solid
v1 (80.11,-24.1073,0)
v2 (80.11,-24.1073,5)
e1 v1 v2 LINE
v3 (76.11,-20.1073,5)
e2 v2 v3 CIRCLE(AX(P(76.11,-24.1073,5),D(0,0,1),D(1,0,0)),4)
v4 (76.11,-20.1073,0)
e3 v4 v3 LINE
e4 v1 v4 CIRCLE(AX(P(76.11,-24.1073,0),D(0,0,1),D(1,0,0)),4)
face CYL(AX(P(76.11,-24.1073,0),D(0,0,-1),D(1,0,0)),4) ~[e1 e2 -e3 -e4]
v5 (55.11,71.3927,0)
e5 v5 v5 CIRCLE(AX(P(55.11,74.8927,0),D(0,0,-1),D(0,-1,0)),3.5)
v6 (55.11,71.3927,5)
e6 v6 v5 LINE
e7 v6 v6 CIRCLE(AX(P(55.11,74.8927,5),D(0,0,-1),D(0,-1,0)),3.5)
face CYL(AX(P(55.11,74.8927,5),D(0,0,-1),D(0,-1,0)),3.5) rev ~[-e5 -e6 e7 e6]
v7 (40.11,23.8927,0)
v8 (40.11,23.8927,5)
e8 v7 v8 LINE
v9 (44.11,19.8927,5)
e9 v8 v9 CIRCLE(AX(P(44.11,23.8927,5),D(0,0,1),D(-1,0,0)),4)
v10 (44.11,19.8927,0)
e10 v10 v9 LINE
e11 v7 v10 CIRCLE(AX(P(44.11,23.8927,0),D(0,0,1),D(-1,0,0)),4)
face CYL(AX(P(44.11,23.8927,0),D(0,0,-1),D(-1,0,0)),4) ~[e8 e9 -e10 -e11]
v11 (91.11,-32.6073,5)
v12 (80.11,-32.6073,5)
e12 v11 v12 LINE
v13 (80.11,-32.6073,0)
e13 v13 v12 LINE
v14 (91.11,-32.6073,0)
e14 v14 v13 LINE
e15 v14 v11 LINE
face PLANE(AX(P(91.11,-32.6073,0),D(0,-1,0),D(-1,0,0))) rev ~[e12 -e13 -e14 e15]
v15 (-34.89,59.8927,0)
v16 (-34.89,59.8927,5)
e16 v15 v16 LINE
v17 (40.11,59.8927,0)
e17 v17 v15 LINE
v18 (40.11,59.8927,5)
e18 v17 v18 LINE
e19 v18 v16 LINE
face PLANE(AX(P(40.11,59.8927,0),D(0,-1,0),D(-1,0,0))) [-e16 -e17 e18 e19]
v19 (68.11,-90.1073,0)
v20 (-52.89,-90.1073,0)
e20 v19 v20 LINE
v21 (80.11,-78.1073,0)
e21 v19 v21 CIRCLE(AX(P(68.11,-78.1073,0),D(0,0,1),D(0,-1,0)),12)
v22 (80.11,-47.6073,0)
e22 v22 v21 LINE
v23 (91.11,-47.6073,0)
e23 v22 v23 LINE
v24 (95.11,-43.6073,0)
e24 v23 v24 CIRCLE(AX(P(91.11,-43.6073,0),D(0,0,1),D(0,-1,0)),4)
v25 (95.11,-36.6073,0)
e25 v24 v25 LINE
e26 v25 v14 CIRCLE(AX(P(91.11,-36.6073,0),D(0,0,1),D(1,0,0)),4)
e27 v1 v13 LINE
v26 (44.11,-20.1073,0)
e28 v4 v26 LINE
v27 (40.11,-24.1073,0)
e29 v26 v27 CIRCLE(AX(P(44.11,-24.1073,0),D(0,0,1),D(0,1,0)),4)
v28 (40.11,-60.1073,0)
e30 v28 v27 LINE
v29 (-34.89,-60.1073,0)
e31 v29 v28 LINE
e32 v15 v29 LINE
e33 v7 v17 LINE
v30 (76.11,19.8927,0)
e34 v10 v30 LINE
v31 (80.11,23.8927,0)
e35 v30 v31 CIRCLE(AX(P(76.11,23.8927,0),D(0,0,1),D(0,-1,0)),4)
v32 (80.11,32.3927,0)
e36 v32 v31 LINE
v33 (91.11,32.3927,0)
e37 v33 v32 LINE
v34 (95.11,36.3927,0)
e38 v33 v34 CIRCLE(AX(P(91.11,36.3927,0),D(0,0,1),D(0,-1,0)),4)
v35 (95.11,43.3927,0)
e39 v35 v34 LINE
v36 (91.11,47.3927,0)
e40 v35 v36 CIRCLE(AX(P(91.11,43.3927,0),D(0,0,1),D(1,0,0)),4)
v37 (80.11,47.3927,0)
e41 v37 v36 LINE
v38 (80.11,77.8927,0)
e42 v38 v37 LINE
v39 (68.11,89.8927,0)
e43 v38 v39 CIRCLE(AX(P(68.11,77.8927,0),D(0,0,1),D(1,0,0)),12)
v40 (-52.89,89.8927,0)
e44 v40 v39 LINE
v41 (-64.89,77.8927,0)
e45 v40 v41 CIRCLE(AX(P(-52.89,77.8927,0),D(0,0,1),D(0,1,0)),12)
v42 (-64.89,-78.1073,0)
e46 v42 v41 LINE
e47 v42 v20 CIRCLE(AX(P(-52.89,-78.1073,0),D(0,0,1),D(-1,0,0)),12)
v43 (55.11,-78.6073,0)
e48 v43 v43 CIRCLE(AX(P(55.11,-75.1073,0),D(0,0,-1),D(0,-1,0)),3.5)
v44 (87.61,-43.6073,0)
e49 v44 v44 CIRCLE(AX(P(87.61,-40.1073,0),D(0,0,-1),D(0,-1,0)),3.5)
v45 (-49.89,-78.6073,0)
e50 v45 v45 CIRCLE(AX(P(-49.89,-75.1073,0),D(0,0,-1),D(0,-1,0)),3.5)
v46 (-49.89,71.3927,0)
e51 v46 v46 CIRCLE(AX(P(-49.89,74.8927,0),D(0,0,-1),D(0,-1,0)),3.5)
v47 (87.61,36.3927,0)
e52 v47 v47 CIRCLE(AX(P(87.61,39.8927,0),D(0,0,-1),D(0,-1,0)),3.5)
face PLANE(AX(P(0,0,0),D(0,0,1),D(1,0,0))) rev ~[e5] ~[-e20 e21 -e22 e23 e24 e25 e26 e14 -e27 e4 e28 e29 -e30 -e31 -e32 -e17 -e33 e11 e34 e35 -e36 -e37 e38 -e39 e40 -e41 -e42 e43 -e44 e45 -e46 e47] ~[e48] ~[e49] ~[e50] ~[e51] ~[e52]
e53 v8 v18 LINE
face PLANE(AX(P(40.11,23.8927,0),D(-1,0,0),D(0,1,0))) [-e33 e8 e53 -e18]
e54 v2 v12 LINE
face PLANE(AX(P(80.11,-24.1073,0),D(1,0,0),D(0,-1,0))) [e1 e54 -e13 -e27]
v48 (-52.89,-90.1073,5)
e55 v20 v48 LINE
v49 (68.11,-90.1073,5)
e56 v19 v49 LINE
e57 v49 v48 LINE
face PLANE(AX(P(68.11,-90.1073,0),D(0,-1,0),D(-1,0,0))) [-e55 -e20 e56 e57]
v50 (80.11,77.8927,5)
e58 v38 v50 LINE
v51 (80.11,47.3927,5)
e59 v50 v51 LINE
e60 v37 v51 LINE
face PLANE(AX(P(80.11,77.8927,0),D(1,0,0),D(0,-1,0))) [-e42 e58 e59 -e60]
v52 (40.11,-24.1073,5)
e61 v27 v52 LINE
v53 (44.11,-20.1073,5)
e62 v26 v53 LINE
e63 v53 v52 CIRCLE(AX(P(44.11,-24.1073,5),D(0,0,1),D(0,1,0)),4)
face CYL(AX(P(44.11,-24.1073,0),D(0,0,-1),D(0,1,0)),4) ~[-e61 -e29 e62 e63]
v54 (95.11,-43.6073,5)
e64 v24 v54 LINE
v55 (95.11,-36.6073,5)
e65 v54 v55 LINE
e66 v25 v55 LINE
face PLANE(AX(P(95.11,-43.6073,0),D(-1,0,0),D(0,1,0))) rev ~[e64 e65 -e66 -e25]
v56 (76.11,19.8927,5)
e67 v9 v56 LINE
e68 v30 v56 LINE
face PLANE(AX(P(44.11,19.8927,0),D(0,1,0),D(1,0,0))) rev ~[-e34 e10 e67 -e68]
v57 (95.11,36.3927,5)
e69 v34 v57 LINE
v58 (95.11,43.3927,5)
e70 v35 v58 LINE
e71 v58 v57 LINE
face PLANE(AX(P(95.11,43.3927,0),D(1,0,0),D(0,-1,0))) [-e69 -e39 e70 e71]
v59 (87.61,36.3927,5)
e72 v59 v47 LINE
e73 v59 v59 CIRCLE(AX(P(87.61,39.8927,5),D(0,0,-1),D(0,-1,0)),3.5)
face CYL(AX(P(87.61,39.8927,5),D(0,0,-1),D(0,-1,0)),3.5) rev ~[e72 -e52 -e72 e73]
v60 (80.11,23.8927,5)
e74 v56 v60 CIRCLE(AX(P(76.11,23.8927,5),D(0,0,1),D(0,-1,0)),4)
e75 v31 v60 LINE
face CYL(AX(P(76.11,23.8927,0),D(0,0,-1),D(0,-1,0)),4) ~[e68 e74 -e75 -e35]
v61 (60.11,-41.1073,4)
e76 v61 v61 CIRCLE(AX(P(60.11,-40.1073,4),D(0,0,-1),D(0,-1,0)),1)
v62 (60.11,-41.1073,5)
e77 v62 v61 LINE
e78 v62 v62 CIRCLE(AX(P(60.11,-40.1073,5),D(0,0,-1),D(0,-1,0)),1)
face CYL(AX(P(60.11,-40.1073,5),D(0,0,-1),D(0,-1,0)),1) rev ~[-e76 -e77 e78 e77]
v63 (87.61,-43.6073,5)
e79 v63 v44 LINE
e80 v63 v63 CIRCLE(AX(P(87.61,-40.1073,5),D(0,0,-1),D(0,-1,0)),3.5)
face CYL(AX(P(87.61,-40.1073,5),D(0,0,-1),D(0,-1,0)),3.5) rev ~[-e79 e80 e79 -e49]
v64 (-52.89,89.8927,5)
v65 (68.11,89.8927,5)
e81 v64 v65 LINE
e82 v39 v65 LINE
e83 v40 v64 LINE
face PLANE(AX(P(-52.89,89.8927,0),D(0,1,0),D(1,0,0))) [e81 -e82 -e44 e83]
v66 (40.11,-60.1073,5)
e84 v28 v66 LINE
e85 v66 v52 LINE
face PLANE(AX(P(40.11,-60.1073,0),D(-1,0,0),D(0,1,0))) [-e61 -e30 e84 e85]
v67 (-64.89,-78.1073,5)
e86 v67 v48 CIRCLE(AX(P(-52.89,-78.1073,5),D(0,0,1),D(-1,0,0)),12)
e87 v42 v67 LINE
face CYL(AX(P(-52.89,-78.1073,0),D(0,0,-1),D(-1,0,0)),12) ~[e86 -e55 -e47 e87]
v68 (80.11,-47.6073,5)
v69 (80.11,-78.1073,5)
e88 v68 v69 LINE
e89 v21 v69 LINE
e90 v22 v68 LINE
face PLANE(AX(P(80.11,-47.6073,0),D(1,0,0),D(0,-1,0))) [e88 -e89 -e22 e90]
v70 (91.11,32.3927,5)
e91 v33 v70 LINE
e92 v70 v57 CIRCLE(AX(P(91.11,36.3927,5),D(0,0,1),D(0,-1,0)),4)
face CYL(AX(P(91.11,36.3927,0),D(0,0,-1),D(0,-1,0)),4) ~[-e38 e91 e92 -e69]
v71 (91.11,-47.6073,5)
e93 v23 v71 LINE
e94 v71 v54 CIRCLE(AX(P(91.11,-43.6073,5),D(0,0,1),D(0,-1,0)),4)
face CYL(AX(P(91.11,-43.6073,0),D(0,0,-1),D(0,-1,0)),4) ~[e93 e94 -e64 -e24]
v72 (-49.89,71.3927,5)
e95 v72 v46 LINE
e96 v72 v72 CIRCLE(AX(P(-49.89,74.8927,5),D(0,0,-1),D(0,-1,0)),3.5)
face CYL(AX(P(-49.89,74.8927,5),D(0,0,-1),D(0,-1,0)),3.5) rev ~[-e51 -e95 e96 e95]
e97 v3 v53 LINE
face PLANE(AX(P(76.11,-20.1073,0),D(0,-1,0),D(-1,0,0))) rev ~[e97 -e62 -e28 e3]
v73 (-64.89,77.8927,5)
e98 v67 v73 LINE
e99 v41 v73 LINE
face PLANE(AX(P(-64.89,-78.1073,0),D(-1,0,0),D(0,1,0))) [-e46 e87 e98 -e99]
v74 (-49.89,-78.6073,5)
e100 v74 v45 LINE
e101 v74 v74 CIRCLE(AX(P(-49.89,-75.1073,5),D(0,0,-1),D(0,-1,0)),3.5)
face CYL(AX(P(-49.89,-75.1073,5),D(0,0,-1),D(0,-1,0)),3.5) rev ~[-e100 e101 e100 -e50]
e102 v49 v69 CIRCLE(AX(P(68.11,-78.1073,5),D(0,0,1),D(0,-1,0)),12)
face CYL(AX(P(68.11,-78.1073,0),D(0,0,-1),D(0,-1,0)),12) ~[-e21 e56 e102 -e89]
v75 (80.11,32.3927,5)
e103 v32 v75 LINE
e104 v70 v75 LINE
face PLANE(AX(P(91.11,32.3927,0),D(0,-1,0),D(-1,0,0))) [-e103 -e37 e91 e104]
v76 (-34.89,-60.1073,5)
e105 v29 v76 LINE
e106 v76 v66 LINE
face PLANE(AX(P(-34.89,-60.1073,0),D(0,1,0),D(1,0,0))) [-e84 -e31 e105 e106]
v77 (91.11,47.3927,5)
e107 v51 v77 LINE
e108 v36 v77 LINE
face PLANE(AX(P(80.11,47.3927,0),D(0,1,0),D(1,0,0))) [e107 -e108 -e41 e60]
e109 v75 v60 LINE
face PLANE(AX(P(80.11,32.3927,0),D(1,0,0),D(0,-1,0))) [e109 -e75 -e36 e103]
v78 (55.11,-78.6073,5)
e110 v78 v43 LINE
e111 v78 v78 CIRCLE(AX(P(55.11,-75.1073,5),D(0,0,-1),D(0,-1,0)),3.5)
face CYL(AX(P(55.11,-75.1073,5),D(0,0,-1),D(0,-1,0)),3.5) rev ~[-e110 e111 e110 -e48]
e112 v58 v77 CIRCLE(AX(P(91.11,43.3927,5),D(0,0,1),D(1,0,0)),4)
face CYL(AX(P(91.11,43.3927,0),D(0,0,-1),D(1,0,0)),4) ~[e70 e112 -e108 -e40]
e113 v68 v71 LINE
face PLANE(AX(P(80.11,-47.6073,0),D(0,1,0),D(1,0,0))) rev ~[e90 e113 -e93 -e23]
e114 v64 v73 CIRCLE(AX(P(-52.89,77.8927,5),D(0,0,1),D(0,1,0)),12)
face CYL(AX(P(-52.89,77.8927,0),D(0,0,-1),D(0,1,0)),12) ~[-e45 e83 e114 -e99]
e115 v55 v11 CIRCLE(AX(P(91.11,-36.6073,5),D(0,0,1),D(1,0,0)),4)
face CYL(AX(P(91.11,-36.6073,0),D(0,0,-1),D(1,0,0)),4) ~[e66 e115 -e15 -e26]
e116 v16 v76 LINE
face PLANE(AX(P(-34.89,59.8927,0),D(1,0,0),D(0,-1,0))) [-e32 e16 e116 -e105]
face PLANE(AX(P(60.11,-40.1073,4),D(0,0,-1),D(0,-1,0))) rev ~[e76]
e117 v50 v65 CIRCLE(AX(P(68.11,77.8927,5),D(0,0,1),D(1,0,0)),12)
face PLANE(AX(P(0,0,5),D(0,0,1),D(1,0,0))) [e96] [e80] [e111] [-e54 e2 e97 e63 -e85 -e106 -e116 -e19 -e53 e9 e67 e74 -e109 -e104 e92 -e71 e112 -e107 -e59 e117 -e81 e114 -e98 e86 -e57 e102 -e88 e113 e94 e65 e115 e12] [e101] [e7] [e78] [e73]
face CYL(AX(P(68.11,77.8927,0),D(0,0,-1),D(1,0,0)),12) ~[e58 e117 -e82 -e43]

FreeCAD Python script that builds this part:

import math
import FreeCAD as App
import Part
import Sketcher
Q = App.Units.Quantity

doc = App.newDocument("Part")
body = doc.addObject("PartDesign::Body", "Body")

sketch1 = doc.addObject("Sketcher::SketchObject", "Sketch")
body.addObject(sketch1)
sketch1.AttachmentSupport = (doc.XY_Plane, [""])
sketch1.MapMode = "FlatFace"
sketch1.addGeometry([
    Part.LineSegment(App.Vector(-34.9, 59.9, 0), App.Vector(40.1, 59.9, 0)),
    Part.LineSegment(App.Vector(40.1, 59.9, 0), App.Vector(40.1, 23.9, 0)),
    Part.ArcOfCircle(Part.Circle(App.Vector(44.1, 23.9, 0), App.Vector(0, 0, 1), 4), math.radians(180), math.radians(270)),
    Part.LineSegment(App.Vector(44.1, 19.9, 0), App.Vector(76.1, 19.9, 0)),
    Part.ArcOfCircle(Part.Circle(App.Vector(76.1, 23.9, 0), App.Vector(0, 0, 1), 4), math.radians(-90), math.radians(0)),
    Part.LineSegment(App.Vector(80.1, 23.9, 0), App.Vector(80.1, 32.4, 0)),
    Part.LineSegment(App.Vector(80.1, 32.4, 0), App.Vector(91.1, 32.4, 0)),
    Part.ArcOfCircle(Part.Circle(App.Vector(91.1, 36.4, 0), App.Vector(0, 0, 1), 4), math.radians(-90), math.radians(0)),
    Part.LineSegment(App.Vector(95.1, 36.4, 0), App.Vector(95.1, 43.4, 0)),
    Part.ArcOfCircle(Part.Circle(App.Vector(91.1, 43.4, 0), App.Vector(0, 0, 1), 4), math.radians(0), math.radians(90)),
    Part.LineSegment(App.Vector(91.1, 47.4, 0), App.Vector(80.1, 47.4, 0)),
    Part.LineSegment(App.Vector(80.1, 47.4, 0), App.Vector(80.1, 77.9, 0)),
    Part.ArcOfCircle(Part.Circle(App.Vector(68.1, 77.9, 0), App.Vector(0, 0, 1), 12), math.radians(0), math.radians(90)),
    Part.LineSegment(App.Vector(68.1, 89.9, 0), App.Vector(-52.9, 89.9, 0)),
    Part.ArcOfCircle(Part.Circle(App.Vector(-52.9, 77.9, 0), App.Vector(0, 0, 1), 12), math.radians(90), math.radians(180)),
    Part.LineSegment(App.Vector(-64.9, 77.9, 0), App.Vector(-64.9, -78.1, 0)),
    Part.ArcOfCircle(Part.Circle(App.Vector(-52.9, -78.1, 0), App.Vector(0, 0, 1), 12), math.radians(180), math.radians(270)),
    Part.LineSegment(App.Vector(-52.9, -90.1, 0), App.Vector(68.1, -90.1, 0)),
    Part.ArcOfCircle(Part.Circle(App.Vector(68.1, -78.1, 0), App.Vector(0, 0, 1), 12), math.radians(-90), math.radians(0)),
    Part.LineSegment(App.Vector(80.1, -78.1, 0), App.Vector(80.1, -47.6, 0)),
    Part.LineSegment(App.Vector(80.1, -47.6, 0), App.Vector(91.1, -47.6, 0)),
    Part.ArcOfCircle(Part.Circle(App.Vector(91.1, -43.6, 0), App.Vector(0, 0, 1), 4), math.radians(-90), math.radians(0)),
    Part.LineSegment(App.Vector(95.1, -43.6, 0), App.Vector(95.1, -36.6, 0)),
    Part.ArcOfCircle(Part.Circle(App.Vector(91.1, -36.6, 0), App.Vector(0, 0, 1), 4), math.radians(0), math.radians(90)),
    Part.LineSegment(App.Vector(91.1, -32.6, 0), App.Vector(80.1, -32.6, 0)),
    Part.LineSegment(App.Vector(80.1, -32.6, 0), App.Vector(80.1, -24.1, 0)),
    Part.ArcOfCircle(Part.Circle(App.Vector(76.1, -24.1, 0), App.Vector(0, 0, 1), 4), math.radians(0), math.radians(90)),
    Part.LineSegment(App.Vector(76.1, -20.1, 0), App.Vector(44.1, -20.1, 0)),
    Part.ArcOfCircle(Part.Circle(App.Vector(44.1, -24.1, 0), App.Vector(0, 0, 1), 4), math.radians(90), math.radians(180)),
    Part.LineSegment(App.Vector(40.1, -24.1, 0), App.Vector(40.1, -60.1, 0)),
    Part.LineSegment(App.Vector(40.1, -60.1, 0), App.Vector(-34.9, -60.1, 0)),
    Part.LineSegment(App.Vector(-34.9, -60.1, 0), App.Vector(-34.9, 59.9, 0)),
], False)
sketch1.addConstraint([
    Sketcher.Constraint("Coincident", 0, 2, 1, 1),
    Sketcher.Constraint("Tangent", 1, 2, 2, 1),
    Sketcher.Constraint("Tangent", 2, 2, 3, 1),
    Sketcher.Constraint("Tangent", 3, 2, 4, 1),
    Sketcher.Constraint("Tangent", 4, 2, 5, 1),
    Sketcher.Constraint("Coincident", 5, 2, 6, 1),
    Sketcher.Constraint("Tangent", 6, 2, 7, 1),
    Sketcher.Constraint("Tangent", 7, 2, 8, 1),
    Sketcher.Constraint("Tangent", 8, 2, 9, 1),
    Sketcher.Constraint("Tangent", 9, 2, 10, 1),
    Sketcher.Constraint("Coincident", 10, 2, 11, 1),
    Sketcher.Constraint("Tangent", 11, 2, 12, 1),
    Sketcher.Constraint("Tangent", 12, 2, 13, 1),
    Sketcher.Constraint("Tangent", 13, 2, 14, 1),
    Sketcher.Constraint("Tangent", 14, 2, 15, 1),
    Sketcher.Constraint("Tangent", 15, 2, 16, 1),
    Sketcher.Constraint("Tangent", 16, 2, 17, 1),
    Sketcher.Constraint("Tangent", 17, 2, 18, 1),
    Sketcher.Constraint("Tangent", 18, 2, 19, 1),
    Sketcher.Constraint("Coincident", 19, 2, 20, 1),
    Sketcher.Constraint("Tangent", 20, 2, 21, 1),
    Sketcher.Constraint("Tangent", 21, 2, 22, 1),
    Sketcher.Constraint("Tangent", 22, 2, 23, 1),
    Sketcher.Constraint("Tangent", 23, 2, 24, 1),
    Sketcher.Constraint("Coincident", 24, 2, 25, 1),
    Sketcher.Constraint("Tangent", 25, 2, 26, 1),
    Sketcher.Constraint("Tangent", 26, 2, 27, 1),
    Sketcher.Constraint("Tangent", 27, 2, 28, 1),
    Sketcher.Constraint("Tangent", 28, 2, 29, 1),
    Sketcher.Constraint("Coincident", 29, 2, 30, 1),
    Sketcher.Constraint("Coincident", 30, 2, 31, 1),
    Sketcher.Constraint("Coincident", 31, 2, 0, 1),
    Sketcher.Constraint("Horizontal", 0),
    Sketcher.Constraint("Vertical", 1),
    Sketcher.Constraint("Horizontal", 3),
    Sketcher.Constraint("Vertical", 5),
    Sketcher.Constraint("Horizontal", 6),
    Sketcher.Constraint("Vertical", 8),
    Sketcher.Constraint("Horizontal", 10),
    Sketcher.Constraint("Vertical", 11),
    Sketcher.Constraint("Horizontal", 13),
    Sketcher.Constraint("Vertical", 15),
    Sketcher.Constraint("Horizontal", 17),
    Sketcher.Constraint("Vertical", 19),
    Sketcher.Constraint("Horizontal", 20),
    Sketcher.Constraint("Vertical", 22),
    Sketcher.Constraint("Horizontal", 24),
    Sketcher.Constraint("Vertical", 25),
    Sketcher.Constraint("Horizontal", 27),
    Sketcher.Constraint("Vertical", 29),
    Sketcher.Constraint("Horizontal", 30),
    Sketcher.Constraint("Vertical", 31),
    Sketcher.Constraint("Equal", 2, 4),
    Sketcher.Constraint("Equal", 4, 7),
    Sketcher.Constraint("Equal", 7, 9),
    Sketcher.Constraint("Equal", 12, 14),
    Sketcher.Constraint("Equal", 14, 16),
    Sketcher.Constraint("Equal", 16, 18),
    Sketcher.Constraint("Equal", 9, 21),
    Sketcher.Constraint("Equal", 21, 23),
    Sketcher.Constraint("Equal", 23, 26),
    Sketcher.Constraint("Equal", 26, 28),
    Sketcher.Constraint("Vertical", 12, 3, 18, 3),
    Sketcher.Constraint("Vertical", 9, 3, 21, 3),
    Sketcher.Constraint("Vertical", 4, 3, 26, 3),
    Sketcher.Constraint("Vertical", 2, 3, 28, 3),
    Sketcher.Constraint("Vertical", 5, 2, 10, 2),
    Sketcher.Constraint("Equal", 11, 19),
    Sketcher.Constraint("Equal", 8, 22),
    Sketcher.Constraint("Equal", 5, 25),
    Sketcher.Constraint("Equal", 1, 29),
    Sketcher.Constraint("Radius", 2, Q("4 mm")),
    Sketcher.Constraint("Radius", 12, Q("12 mm")),
    Sketcher.Constraint("DistanceX", 0, 1, 0, 2, Q("75 mm")),
    Sketcher.Constraint("DistanceY", 31, 1, 31, 2, Q("120 mm")),
    Sketcher.Constraint("DistanceX", 4, 3, 7, 3, Q("15 mm")),
    Sketcher.Constraint("DistanceY", 21, 3, 7, 3, Q("80 mm")),
    Sketcher.Constraint("DistanceY", 2, 2, 0, 2, Q("40 mm")),
    Sketcher.Constraint("DistanceY", 6, 2, 9, 2, Q("15 mm")),
    Sketcher.Constraint("DistanceY", 0, 2, 12, 2, Q("30 mm")),
    Sketcher.Constraint("DistanceX", 28, 2, 25, 2, Q("40 mm")),
    Sketcher.Constraint("DistanceX", 15, 2, 30, 2, Q("30 mm")),
    Sketcher.Constraint("DistanceX", -1, 1, 2, 3, Q("44.11 mm")),
    Sketcher.Constraint("DistanceY", -1, 1, 2, 3, Q("23.8927 mm")),
])
pad1 = doc.addObject("PartDesign::Pad", "Pad")
body.addObject(pad1)
pad1.Profile = sketch1
pad1.Length = 5

sketch2 = doc.addObject("Sketcher::SketchObject", "Sketch001")
body.addObject(sketch2)
sketch2.AttachmentSupport = (doc.XY_Plane, [""])
sketch2.MapMode = "FlatFace"
sketch2.AttachmentOffset = App.Placement(App.Vector(0, 0, 5), App.Rotation())
sketch2.addGeometry([
    Part.Circle(App.Vector(87.6, 39.9, 0), App.Vector(0, 0, 1), 3.5),
    Part.Circle(App.Vector(87.6, -40.1, 0), App.Vector(0, 0, 1), 3.5),
], False)
sketch2.addConstraint([
    Sketcher.Constraint("Equal", 0, 1),
    Sketcher.Constraint("Vertical", 0, 3, 1, 3),
    Sketcher.Constraint("Diameter", 0, Q("7 mm")),
    Sketcher.Constraint("DistanceY", 1, 3, 0, 3, Q("80 mm")),
    Sketcher.Constraint("DistanceX", -1, 1, 0, 3, Q("87.61 mm")),
    Sketcher.Constraint("DistanceY", -1, 1, 0, 3, Q("39.8927 mm")),
])
doc.recompute()
hole = doc.addObject("PartDesign::Hole", "Hole")
body.addObject(hole)
hole.Profile = sketch2
hole.ThreadType = "None"
hole.Diameter = 7
hole.DepthType = "ThroughAll"

sketch3 = doc.addObject("Sketcher::SketchObject", "Sketch002")
body.addObject(sketch3)
sketch3.AttachmentSupport = (doc.XY_Plane, [""])
sketch3.MapMode = "FlatFace"
sketch3.AttachmentOffset = App.Placement(App.Vector(0, 0, 5), App.Rotation())
sketch3.addGeometry([
    Part.Circle(App.Vector(-49.9, 74.9, 0), App.Vector(0, 0, 1), 3.5),
    Part.Circle(App.Vector(-49.9, -75.1, 0), App.Vector(0, 0, 1), 3.5),
    Part.Circle(App.Vector(55.1, -75.1, 0), App.Vector(0, 0, 1), 3.5),
    Part.Circle(App.Vector(55.1, 74.9, 0), App.Vector(0, 0, 1), 3.5),
], False)
sketch3.addConstraint([
    Sketcher.Constraint("Equal", 0, 1),
    Sketcher.Constraint("Equal", 1, 2),
    Sketcher.Constraint("Equal", 2, 3),
    Sketcher.Constraint("Horizontal", 1, 3, 2, 3),
    Sketcher.Constraint("Horizontal", 0, 3, 3, 3),
    Sketcher.Constraint("Vertical", 0, 3, 1, 3),
    Sketcher.Constraint("Vertical", 2, 3, 3, 3),
    Sketcher.Constraint("Diameter", 0, Q("7 mm")),
    Sketcher.Constraint("DistanceY", 1, 3, 0, 3, Q("150 mm")),
    Sketcher.Constraint("DistanceX", 1, 3, 2, 3, Q("105 mm")),
    Sketcher.Constraint("DistanceX", 0, 3, -1, 1, Q("49.89 mm")),
    Sketcher.Constraint("DistanceY", -1, 1, 0, 3, Q("74.8927 mm")),
])
doc.recompute()
hole2 = doc.addObject("PartDesign::Hole", "Hole001")
body.addObject(hole2)
hole2.Profile = sketch3
hole2.ThreadType = "None"
hole2.Diameter = 7
hole2.DepthType = "ThroughAll"

sketch4 = doc.addObject("Sketcher::SketchObject", "Sketch003")
body.addObject(sketch4)
sketch4.AttachmentSupport = (doc.XY_Plane, [""])
sketch4.MapMode = "FlatFace"
sketch4.AttachmentOffset = App.Placement(App.Vector(0, 0, 5), App.Rotation())
sketch4.addGeometry(Part.Circle(App.Vector(60.1, -40.1, 0), App.Vector(0, 0, 1), 1), False)
sketch4.addConstraint([
    Sketcher.Constraint("Diameter", 0, Q("2 mm")),
    Sketcher.Constraint("DistanceX", -1, 1, 0, 3, Q("60.11 mm")),
    Sketcher.Constraint("DistanceY", 0, 3, -1, 1, Q("40.1073 mm")),
])
doc.recompute()
hole3 = doc.addObject("PartDesign::Hole", "Hole002")
body.addObject(hole3)
hole3.Profile = sketch4
hole3.ThreadType = "None"
hole3.Diameter = 2
hole3.DepthType = "Dimension"
hole3.Depth = 1
hole3.DrillPoint = "Flat"

doc.recompute()
